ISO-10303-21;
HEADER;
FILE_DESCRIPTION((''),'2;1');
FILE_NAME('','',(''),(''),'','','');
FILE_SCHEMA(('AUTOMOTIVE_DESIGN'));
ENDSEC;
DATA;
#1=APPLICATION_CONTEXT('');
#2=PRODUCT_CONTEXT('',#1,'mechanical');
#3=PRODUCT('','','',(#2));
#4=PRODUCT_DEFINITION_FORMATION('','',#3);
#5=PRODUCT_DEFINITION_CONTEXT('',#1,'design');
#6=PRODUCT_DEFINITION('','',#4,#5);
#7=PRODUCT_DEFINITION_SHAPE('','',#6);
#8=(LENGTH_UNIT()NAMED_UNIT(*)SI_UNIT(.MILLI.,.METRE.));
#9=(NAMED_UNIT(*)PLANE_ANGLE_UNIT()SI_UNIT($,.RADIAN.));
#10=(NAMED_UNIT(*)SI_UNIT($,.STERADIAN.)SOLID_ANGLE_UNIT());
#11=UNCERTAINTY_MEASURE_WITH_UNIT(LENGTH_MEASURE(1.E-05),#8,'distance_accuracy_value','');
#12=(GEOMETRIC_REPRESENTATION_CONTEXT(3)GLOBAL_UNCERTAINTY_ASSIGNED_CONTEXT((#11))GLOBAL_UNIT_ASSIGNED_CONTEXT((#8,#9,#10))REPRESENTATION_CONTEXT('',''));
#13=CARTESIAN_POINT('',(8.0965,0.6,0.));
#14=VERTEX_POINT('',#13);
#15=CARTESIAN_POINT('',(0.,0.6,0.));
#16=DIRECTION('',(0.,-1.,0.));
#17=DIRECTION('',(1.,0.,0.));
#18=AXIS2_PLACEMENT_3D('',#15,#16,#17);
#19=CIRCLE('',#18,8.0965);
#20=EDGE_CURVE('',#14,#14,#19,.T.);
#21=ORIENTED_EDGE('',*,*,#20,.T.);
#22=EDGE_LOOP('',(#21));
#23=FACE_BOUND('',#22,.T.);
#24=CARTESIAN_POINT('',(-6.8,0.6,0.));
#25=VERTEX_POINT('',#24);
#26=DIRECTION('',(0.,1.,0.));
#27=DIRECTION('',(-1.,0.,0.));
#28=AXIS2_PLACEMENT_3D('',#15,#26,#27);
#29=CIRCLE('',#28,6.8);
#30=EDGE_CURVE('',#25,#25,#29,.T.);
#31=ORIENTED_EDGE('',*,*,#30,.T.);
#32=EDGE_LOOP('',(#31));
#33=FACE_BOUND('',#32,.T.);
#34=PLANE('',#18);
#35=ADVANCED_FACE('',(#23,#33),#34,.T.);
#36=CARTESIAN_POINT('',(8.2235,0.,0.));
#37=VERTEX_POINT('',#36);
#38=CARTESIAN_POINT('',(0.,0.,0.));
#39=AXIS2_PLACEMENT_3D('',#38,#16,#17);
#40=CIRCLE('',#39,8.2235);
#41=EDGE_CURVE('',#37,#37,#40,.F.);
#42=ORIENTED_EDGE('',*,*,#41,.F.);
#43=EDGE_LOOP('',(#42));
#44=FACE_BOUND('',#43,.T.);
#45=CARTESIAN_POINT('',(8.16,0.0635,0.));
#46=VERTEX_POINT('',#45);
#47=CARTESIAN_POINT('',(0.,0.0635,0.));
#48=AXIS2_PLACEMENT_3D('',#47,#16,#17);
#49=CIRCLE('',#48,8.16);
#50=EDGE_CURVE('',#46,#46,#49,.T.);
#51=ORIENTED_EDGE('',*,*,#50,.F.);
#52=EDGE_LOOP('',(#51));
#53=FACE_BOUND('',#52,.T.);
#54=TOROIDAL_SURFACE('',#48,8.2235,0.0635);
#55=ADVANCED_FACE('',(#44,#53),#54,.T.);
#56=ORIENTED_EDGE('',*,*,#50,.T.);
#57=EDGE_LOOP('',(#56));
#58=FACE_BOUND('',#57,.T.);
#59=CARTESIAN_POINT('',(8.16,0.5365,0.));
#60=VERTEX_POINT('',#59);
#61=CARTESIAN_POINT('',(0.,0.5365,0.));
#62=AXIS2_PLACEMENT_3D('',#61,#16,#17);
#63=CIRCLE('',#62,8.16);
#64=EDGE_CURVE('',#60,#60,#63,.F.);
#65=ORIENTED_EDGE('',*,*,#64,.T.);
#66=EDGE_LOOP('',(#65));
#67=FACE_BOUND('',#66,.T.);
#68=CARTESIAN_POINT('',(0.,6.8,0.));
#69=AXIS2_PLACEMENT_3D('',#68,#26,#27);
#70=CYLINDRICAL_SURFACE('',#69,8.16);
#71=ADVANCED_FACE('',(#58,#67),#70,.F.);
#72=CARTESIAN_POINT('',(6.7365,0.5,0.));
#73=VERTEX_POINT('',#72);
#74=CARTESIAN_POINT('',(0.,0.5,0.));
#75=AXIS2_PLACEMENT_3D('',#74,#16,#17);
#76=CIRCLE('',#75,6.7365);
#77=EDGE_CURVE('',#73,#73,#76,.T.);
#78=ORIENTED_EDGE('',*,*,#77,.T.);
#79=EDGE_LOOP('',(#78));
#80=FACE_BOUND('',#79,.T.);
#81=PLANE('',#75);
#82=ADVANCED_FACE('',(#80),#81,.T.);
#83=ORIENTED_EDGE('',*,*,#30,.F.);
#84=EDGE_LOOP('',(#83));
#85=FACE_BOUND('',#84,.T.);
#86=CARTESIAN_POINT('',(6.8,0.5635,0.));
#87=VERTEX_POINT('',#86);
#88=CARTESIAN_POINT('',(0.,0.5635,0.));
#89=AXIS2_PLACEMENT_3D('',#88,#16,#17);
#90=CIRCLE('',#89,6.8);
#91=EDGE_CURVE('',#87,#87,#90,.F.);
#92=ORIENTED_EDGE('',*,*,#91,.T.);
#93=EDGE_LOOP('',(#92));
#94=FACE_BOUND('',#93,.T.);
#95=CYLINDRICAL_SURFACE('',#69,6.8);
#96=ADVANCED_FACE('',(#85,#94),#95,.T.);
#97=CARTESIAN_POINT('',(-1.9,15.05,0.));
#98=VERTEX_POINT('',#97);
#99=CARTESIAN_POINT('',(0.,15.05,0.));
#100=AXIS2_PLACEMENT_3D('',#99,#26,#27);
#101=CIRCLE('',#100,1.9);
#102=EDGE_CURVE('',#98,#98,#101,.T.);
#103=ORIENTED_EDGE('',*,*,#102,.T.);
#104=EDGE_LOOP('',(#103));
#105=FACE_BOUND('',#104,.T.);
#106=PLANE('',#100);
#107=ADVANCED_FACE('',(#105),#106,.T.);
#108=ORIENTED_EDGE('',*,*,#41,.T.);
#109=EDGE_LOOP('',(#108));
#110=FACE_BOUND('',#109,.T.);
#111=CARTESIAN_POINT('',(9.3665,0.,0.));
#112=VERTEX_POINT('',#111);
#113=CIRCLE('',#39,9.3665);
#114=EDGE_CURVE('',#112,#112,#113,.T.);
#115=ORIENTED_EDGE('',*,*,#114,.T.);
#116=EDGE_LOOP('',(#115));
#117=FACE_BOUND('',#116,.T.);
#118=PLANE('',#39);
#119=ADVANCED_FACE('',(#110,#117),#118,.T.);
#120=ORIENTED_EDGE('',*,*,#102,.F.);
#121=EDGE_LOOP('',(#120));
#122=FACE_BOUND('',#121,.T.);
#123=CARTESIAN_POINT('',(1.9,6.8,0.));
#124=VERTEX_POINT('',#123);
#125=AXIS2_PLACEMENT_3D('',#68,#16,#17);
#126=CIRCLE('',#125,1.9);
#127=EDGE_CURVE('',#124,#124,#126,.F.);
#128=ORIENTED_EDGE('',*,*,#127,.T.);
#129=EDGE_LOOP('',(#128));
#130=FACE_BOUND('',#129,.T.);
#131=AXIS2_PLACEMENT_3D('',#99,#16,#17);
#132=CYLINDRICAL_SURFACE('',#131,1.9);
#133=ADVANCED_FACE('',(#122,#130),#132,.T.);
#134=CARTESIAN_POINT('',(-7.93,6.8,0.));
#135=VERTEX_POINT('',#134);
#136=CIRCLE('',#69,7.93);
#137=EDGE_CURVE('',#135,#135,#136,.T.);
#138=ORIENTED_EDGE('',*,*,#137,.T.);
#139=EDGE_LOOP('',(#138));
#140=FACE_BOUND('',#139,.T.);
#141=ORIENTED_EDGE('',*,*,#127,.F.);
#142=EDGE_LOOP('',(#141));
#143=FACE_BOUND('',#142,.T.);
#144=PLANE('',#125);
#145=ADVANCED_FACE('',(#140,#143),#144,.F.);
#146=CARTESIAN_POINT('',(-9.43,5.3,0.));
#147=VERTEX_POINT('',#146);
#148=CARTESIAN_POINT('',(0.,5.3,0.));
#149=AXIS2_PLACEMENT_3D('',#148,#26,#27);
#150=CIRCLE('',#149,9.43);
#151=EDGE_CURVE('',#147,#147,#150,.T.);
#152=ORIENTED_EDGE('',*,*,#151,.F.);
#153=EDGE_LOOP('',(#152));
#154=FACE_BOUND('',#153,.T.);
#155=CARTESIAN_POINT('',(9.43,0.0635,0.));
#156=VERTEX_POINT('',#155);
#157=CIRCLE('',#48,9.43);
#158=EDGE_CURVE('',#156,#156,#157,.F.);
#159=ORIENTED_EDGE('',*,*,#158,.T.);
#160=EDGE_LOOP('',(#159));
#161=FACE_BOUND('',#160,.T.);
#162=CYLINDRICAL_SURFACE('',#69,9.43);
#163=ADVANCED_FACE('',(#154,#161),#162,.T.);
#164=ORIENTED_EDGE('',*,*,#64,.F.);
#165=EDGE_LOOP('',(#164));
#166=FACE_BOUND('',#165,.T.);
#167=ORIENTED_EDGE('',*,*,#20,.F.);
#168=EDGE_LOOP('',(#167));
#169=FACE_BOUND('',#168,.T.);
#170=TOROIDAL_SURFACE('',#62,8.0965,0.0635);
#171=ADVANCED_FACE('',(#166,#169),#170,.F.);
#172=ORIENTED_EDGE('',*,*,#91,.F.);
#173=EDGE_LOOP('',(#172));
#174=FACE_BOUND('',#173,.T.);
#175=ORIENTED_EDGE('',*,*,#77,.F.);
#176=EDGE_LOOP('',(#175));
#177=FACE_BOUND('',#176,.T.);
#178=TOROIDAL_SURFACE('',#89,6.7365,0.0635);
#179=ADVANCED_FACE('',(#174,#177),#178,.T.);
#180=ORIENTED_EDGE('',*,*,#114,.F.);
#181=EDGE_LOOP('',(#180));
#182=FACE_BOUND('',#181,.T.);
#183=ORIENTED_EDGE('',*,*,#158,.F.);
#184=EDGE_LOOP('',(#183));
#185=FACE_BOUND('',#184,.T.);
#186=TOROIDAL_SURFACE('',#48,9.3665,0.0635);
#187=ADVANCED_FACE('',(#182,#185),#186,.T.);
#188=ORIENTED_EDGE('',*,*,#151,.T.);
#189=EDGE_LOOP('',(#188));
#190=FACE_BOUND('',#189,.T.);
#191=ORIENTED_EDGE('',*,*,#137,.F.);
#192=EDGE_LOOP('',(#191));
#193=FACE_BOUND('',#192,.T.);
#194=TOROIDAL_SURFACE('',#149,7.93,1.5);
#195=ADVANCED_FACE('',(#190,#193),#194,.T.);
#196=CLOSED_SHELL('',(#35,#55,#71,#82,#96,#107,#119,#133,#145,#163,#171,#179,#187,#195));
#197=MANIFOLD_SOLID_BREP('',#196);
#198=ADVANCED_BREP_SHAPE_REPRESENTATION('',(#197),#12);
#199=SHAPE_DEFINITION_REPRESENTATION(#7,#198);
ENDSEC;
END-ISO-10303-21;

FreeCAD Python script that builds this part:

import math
import FreeCAD as App
import Part
import Sketcher
from FreeCAD import Vector


def edges_at(feature, points):
    """Names of the edges that pass closest to the given points."""
    edges = feature.Shape.Edges
    near = lambda p: min(range(len(edges)), key=lambda i: edges[i].distToShape(Part.Vertex(*p))[0])
    return sorted({f"Edge{near(p) + 1}" for p in points})

doc = App.newDocument("Part")
body = doc.addObject("PartDesign::Body", "Body")

# Sketch on XY plane
sketch1 = body.newObject("Sketcher::SketchObject", "Sketch")
sketch1.AttachmentSupport = (doc.getObject("XY_Plane"), [""])
sketch1.MapMode = "FlatFace"
sketch1.addGeometry(Part.LineSegment(Vector(-9.43, 0, 0), Vector(-8.16, 0, 0)), False)
sketch1.addGeometry(Part.LineSegment(Vector(-8.16, 0, 0), Vector(-8.16, 0.6, 0)), False)
sketch1.addGeometry(Part.LineSegment(Vector(-8.16, 0.6, 0), Vector(-6.8, 0.6, 0)), False)
sketch1.addGeometry(Part.LineSegment(Vector(-6.8, 0.6, 0), Vector(-6.8, 0.5, 0)), False)
sketch1.addGeometry(Part.LineSegment(Vector(-6.8, 0.5, 0), Vector(0, 0.5, 0)), False)
sketch1.addGeometry(Part.LineSegment(Vector(0, 0.5, 0), Vector(0, 6.8, 0)), False)
sketch1.addGeometry(Part.LineSegment(Vector(0, 6.8, 0), Vector(-7.93, 6.8, 0)), False)
sketch1.addGeometry(Part.ArcOfCircle(Part.Circle(Vector(-7.93, 5.3, 0), Vector(0, 0, 1), 1.5), math.radians(90), math.radians(180)), False)
sketch1.addGeometry(Part.LineSegment(Vector(-9.43, 5.3, 0), Vector(-9.43, 0, 0)), False)
sketch1.addConstraint(Sketcher.Constraint("Coincident", 0, 2, 1, 1))
sketch1.addConstraint(Sketcher.Constraint("Coincident", 1, 2, 2, 1))
sketch1.addConstraint(Sketcher.Constraint("Coincident", 2, 2, 3, 1))
sketch1.addConstraint(Sketcher.Constraint("Coincident", 3, 2, 4, 1))
sketch1.addConstraint(Sketcher.Constraint("Coincident", 4, 2, 5, 1))
sketch1.addConstraint(Sketcher.Constraint("Coincident", 5, 2, 6, 1))
sketch1.addConstraint(Sketcher.Constraint("Tangent", 6, 2, 7, 1))
sketch1.addConstraint(Sketcher.Constraint("Tangent", 7, 2, 8, 1))
sketch1.addConstraint(Sketcher.Constraint("Coincident", 8, 2, 0, 1))
sketch1.addConstraint(Sketcher.Constraint("Horizontal", 0))
sketch1.addConstraint(Sketcher.Constraint("Vertical", 1))
sketch1.addConstraint(Sketcher.Constraint("Horizontal", 2))
sketch1.addConstraint(Sketcher.Constraint("Vertical", 3))
sketch1.addConstraint(Sketcher.Constraint("Horizontal", 4))
sketch1.addConstraint(Sketcher.Constraint("Vertical", 5))
sketch1.addConstraint(Sketcher.Constraint("Horizontal", 6))
sketch1.addConstraint(Sketcher.Constraint("Vertical", 8))
sketch1.addConstraint(Sketcher.Constraint("PointOnObject", 0, 2, -1))
sketch1.addConstraint(Sketcher.Constraint("PointOnObject", 4, 2, -2))
sketch1.addConstraint(Sketcher.Constraint("Radius", 7, 1.5))
sketch1.addConstraint(Sketcher.Constraint("DistanceX", 4, 1, 4, 2, 6.8))
sketch1.addConstraint(Sketcher.Constraint("DistanceY", 1, 1, 1, 2, 0.6))
sketch1.addConstraint(Sketcher.Constraint("DistanceY", 3, 2, 3, 1, 0.1))
sketch1.addConstraint(Sketcher.Constraint("DistanceY", 5, 1, 5, 2, 6.3))
sketch1.addConstraint(Sketcher.Constraint("DistanceX", 0, 1, 0, 2, 1.27))
sketch1.addConstraint(Sketcher.Constraint("DistanceX", 2, 1, 2, 2, 1.36))
revolution = body.newObject("PartDesign::Revolution", "Revolution")
revolution.Profile = sketch1
revolution.ReferenceAxis = (sketch1, ["V_Axis"])
revolution.Angle = 360

# Sketch on XZ plane
sketch2 = body.newObject("Sketcher::SketchObject", "Sketch001")
sketch2.AttachmentSupport = (doc.getObject("XZ_Plane"), [""])
sketch2.MapMode = "FlatFace"
sketch2.AttachmentOffset = App.Placement(Vector(0, 0, -6.8), App.Rotation())
sketch2.addGeometry(Part.Circle(Vector(0, 0, 0), Vector(0, 0, 1), 1.9), False)
sketch2.addConstraint(Sketcher.Constraint("Coincident", 0, 3, -1, 1))
sketch2.addConstraint(Sketcher.Constraint("Diameter", 0, 3.8))
pad1 = body.newObject("PartDesign::Pad", "Pad")
pad1.Profile = sketch2
pad1.Length = 8.25
pad1.Reversed = True
doc.recompute()

fillet = body.newObject("PartDesign::Fillet", "Fillet")
fillet.Base = (pad1, edges_at(pad1, [
    (8.16, 0.6, 0),
    (8.16, 0, 0),
    (9.43, 0, 0),
    (6.8, 0.5, 0),
]))
fillet.Radius = 0.0635

doc.recompute()
